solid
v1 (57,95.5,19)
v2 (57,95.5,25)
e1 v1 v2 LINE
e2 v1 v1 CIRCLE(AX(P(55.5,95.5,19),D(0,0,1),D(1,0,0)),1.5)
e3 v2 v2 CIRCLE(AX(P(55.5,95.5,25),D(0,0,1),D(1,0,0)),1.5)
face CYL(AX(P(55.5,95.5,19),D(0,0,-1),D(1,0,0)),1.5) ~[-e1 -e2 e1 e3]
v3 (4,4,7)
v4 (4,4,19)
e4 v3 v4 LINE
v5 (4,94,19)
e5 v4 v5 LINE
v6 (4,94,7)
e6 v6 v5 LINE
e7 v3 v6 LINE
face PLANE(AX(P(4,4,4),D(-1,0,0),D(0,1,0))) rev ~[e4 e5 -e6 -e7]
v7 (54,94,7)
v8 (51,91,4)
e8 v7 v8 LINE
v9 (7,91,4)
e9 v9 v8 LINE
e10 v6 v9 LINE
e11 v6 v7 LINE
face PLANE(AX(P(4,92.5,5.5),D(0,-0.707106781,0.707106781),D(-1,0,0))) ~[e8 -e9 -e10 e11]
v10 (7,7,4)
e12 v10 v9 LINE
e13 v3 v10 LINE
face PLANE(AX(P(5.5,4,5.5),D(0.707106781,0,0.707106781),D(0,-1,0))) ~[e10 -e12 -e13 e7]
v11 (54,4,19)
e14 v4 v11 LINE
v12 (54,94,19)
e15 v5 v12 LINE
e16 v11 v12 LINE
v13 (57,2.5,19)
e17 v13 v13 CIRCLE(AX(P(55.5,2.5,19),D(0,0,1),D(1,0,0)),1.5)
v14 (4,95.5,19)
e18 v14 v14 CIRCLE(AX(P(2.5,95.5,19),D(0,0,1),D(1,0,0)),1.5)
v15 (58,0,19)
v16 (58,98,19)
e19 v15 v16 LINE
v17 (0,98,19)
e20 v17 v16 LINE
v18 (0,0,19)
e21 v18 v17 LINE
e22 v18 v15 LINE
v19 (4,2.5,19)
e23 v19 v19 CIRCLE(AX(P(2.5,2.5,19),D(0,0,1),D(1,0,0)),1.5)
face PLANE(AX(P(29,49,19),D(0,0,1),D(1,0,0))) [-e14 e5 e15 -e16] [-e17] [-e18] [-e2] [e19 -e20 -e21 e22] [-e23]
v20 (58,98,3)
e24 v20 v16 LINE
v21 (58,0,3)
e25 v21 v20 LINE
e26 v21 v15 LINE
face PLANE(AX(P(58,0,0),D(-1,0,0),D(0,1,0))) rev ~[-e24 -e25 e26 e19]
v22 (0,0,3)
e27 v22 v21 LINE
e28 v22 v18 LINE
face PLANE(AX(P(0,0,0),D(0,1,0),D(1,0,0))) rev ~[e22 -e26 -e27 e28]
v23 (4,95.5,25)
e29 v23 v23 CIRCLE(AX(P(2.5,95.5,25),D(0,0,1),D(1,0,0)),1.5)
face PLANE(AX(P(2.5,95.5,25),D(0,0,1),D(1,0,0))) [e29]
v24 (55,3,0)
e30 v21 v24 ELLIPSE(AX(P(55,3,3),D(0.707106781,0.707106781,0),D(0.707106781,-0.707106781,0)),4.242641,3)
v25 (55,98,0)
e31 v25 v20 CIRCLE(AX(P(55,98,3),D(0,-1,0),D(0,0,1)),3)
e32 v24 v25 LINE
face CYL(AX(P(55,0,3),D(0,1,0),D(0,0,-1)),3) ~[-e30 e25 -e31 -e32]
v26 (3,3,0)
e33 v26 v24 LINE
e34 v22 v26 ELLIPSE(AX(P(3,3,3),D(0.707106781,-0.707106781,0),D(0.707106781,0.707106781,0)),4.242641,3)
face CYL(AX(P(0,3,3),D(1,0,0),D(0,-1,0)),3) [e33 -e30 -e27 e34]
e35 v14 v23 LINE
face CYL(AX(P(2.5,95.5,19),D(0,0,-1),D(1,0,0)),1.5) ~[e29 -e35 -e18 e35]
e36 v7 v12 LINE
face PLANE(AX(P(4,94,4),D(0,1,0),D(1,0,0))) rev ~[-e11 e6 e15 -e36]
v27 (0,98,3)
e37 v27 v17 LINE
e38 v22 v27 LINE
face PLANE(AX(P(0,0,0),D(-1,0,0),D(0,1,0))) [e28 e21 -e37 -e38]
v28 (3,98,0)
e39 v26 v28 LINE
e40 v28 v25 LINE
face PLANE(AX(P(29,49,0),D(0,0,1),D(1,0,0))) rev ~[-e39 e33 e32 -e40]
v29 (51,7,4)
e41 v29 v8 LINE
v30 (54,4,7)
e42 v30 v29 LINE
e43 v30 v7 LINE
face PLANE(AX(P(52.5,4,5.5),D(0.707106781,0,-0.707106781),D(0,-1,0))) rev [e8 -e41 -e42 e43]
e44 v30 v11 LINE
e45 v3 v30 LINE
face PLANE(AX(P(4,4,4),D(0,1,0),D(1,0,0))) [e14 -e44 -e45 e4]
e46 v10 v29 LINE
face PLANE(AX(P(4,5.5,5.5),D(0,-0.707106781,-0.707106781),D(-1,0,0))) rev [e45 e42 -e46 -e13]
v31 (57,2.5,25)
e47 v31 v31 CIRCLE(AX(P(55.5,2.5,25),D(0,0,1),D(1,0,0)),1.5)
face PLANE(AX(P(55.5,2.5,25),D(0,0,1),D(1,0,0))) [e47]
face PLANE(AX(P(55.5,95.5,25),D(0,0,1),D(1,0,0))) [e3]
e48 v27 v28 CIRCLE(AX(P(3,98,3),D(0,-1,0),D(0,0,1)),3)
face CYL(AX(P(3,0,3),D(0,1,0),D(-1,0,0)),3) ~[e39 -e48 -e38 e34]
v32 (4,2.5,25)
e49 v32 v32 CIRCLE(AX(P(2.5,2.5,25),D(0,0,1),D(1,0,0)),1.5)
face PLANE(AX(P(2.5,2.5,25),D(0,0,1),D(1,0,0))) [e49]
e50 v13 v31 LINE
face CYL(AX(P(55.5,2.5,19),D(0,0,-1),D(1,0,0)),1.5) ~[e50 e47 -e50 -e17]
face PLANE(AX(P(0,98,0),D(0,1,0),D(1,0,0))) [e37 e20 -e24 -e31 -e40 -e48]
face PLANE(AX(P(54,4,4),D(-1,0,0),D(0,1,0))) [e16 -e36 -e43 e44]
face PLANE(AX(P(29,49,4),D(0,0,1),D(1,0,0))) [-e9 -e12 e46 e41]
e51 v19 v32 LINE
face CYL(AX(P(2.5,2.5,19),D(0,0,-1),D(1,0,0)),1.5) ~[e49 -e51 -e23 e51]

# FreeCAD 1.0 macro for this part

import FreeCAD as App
import Part
import Sketcher
Q = App.Units.Quantity


def edges_at(feature, points):
    """Names of the edges that pass closest to the given points."""
    edges = feature.Shape.Edges
    near = lambda p: min(range(len(edges)), key=lambda i: edges[i].distToShape(Part.Vertex(*p))[0])
    return sorted({f"Edge{near(p) + 1}" for p in points})


def add_polygon(sketch, points):
    """Adds a closed chain of lines whose ends are joined by coincident constraints."""
    first, n = sketch.GeometryCount, len(points)
    for a, b in zip(points, points[1:] + points[:1]):
        sketch.addGeometry(Part.LineSegment(App.Vector(*a, 0), App.Vector(*b, 0)), False)
    for i in range(n):
        sketch.addConstraint(Sketcher.Constraint("Coincident", first + i, 2, first + (i + 1) % n, 1))

doc = App.newDocument("Part")
body = doc.addObject("PartDesign::Body", "Body")

sketch1 = body.newObject("Sketcher::SketchObject", "Sketch")
sketch1.AttachmentSupport = (doc.getObject("XY_Plane"), [""])
sketch1.MapMode = "FlatFace"
sketch1.AttachmentOffset = App.Placement(App.Vector(0, 0, 19), App.Rotation())
sketch1.addGeometry(Part.Circle(App.Vector(55.5, 2.5, 0), App.Vector(0, 0, 1), 1.5), False)
sketch1.addConstraint([
    Sketcher.Constraint("Diameter", 0, Q("3 mm")),
    Sketcher.Constraint("DistanceX", -1, 1, 0, 3, Q("55.5 mm")),
    Sketcher.Constraint("DistanceY", -1, 1, 0, 3, Q("2.5 mm")),
])
pad1 = body.newObject("PartDesign::Pad", "Pad")
pad1.Profile = sketch1
pad1.Length = 6
body2 = doc.addObject("PartDesign::Body", "Body001")

sketch2 = body2.newObject("Sketcher::SketchObject", "Sketch001")
sketch2.AttachmentSupport = (doc.getObject("XY_Plane001"), [""])
sketch2.MapMode = "FlatFace"
sketch2.AttachmentOffset = App.Placement(App.Vector(0, 0, 19), App.Rotation())
sketch2.addGeometry(Part.Circle(App.Vector(2.5, 95.5, 0), App.Vector(0, 0, 1), 1.5), False)
sketch2.addConstraint([
    Sketcher.Constraint("Diameter", 0, Q("3 mm")),
    Sketcher.Constraint("DistanceX", -1, 1, 0, 3, Q("2.5 mm")),
    Sketcher.Constraint("DistanceY", -1, 1, 0, 3, Q("95.5 mm")),
])
pad2 = body2.newObject("PartDesign::Pad", "Pad001")
pad2.Profile = sketch2
pad2.Length = 6
body3 = doc.addObject("PartDesign::Body", "Body002")

sketch3 = body3.newObject("Sketcher::SketchObject", "Sketch002")
sketch3.AttachmentSupport = (doc.getObject("XY_Plane002"), [""])
sketch3.MapMode = "FlatFace"
sketch3.AttachmentOffset = App.Placement(App.Vector(0, 0, 19), App.Rotation())
sketch3.addGeometry(Part.Circle(App.Vector(2.5, 2.5, 0), App.Vector(0, 0, 1), 1.5), False)
sketch3.addConstraint([
    Sketcher.Constraint("Diameter", 0, Q("3 mm")),
    Sketcher.Constraint("DistanceX", -1, 1, 0, 3, Q("2.5 mm")),
    Sketcher.Constraint("DistanceY", -1, 1, 0, 3, Q("2.5 mm")),
])
pad3 = body3.newObject("PartDesign::Pad", "Pad002")
pad3.Profile = sketch3
pad3.Length = 6
body4 = doc.addObject("PartDesign::Body", "Body003")

sketch4 = body4.newObject("Sketcher::SketchObject", "Sketch003")
sketch4.AttachmentSupport = (doc.getObject("XY_Plane003"), [""])
sketch4.MapMode = "FlatFace"
sketch4.AttachmentOffset = App.Placement(App.Vector(0, 0, 19), App.Rotation())
sketch4.addGeometry(Part.Circle(App.Vector(55.5, 95.5, 0), App.Vector(0, 0, 1), 1.5), False)
sketch4.addConstraint([
    Sketcher.Constraint("Diameter", 0, Q("3 mm")),
    Sketcher.Constraint("DistanceX", -1, 1, 0, 3, Q("55.5 mm")),
    Sketcher.Constraint("DistanceY", -1, 1, 0, 3, Q("95.5 mm")),
])
pad4 = body4.newObject("PartDesign::Pad", "Pad003")
pad4.Profile = sketch4
pad4.Length = 6
body5 = doc.addObject("PartDesign::Body", "Body004")

sketch5 = body5.newObject("Sketcher::SketchObject", "Sketch004")
sketch5.AttachmentSupport = (doc.getObject("XY_Plane004"), [""])
sketch5.MapMode = "FlatFace"
sketch5.AttachmentOffset = App.Placement(App.Vector(0, 0, 4), App.Rotation())
add_polygon(sketch5, [(4, 94), (4, 4), (54, 4), (54, 94)])
sketch5.addConstraint([
    Sketcher.Constraint("Vertical", 0),
    Sketcher.Constraint("Horizontal", 1),
    Sketcher.Constraint("Vertical", 2),
    Sketcher.Constraint("Horizontal", 3),
    Sketcher.Constraint("DistanceX", 1, 1, 1, 2, Q("50 mm")),
    Sketcher.Constraint("DistanceY", 0, 2, 0, 1, Q("90 mm")),
    Sketcher.Constraint("DistanceX", -1, 1, 0, 2, Q("4 mm")),
    Sketcher.Constraint("DistanceY", -1, 1, 0, 2, Q("4 mm")),
])
pad5 = body5.newObject("PartDesign::Pad", "Pad004")
pad5.Profile = sketch5
pad5.Length = 15
doc.recompute()

chamfer = body5.newObject("PartDesign::Chamfer", "Chamfer")
chamfer.Base = (pad5, edges_at(pad5, [
    (4, 49, 4),
    (54, 49, 4),
    (29, 4, 4),
    (29, 94, 4),
]))
chamfer.Size = 3
body6 = doc.addObject("PartDesign::Body", "Body005")

sketch6 = body6.newObject("Sketcher::SketchObject", "Sketch005")
sketch6.AttachmentSupport = (doc.getObject("XY_Plane005"), [""])
sketch6.MapMode = "FlatFace"
add_polygon(sketch6, [(0, 98), (0, 0), (58, 0), (58, 98)])
sketch6.addConstraint([
    Sketcher.Constraint("Vertical", 0),
    Sketcher.Constraint("Horizontal", 1),
    Sketcher.Constraint("Vertical", 2),
    Sketcher.Constraint("Horizontal", 3),
    Sketcher.Constraint("Coincident", 0, 2, -1, 1),
    Sketcher.Constraint("DistanceX", 1, 1, 1, 2, Q("58 mm")),
    Sketcher.Constraint("DistanceY", 0, 2, 0, 1, Q("98 mm")),
])
pad6 = body6.newObject("PartDesign::Pad", "Pad005")
pad6.Profile = sketch6
pad6.Length = 19
doc.recompute()

boolean = body6.newObject("PartDesign::Boolean", "Boolean")
boolean.Type = "Cut"
boolean.addObjects([body5])
doc.recompute()

fillet = body6.newObject("PartDesign::Fillet", "Fillet")
fillet.Base = (boolean, edges_at(boolean, [(0, 49, 0), (29, 0, 0), (58, 49, 0)]))
fillet.Radius = 3
doc.recompute()

boolean2 = body6.newObject("PartDesign::Boolean", "Boolean001")
boolean2.Type = "Fuse"
boolean2.addObjects([body])
doc.recompute()

boolean3 = body6.newObject("PartDesign::Boolean", "Boolean002")
boolean3.Type = "Fuse"
boolean3.addObjects([body2])
doc.recompute()

boolean4 = body6.newObject("PartDesign::Boolean", "Boolean003")
boolean4.Type = "Fuse"
boolean4.addObjects([body3])
doc.recompute()

boolean5 = body6.newObject("PartDesign::Boolean", "Boolean004")
boolean5.Type = "Fuse"
boolean5.addObjects([body4])

doc.recompute()
